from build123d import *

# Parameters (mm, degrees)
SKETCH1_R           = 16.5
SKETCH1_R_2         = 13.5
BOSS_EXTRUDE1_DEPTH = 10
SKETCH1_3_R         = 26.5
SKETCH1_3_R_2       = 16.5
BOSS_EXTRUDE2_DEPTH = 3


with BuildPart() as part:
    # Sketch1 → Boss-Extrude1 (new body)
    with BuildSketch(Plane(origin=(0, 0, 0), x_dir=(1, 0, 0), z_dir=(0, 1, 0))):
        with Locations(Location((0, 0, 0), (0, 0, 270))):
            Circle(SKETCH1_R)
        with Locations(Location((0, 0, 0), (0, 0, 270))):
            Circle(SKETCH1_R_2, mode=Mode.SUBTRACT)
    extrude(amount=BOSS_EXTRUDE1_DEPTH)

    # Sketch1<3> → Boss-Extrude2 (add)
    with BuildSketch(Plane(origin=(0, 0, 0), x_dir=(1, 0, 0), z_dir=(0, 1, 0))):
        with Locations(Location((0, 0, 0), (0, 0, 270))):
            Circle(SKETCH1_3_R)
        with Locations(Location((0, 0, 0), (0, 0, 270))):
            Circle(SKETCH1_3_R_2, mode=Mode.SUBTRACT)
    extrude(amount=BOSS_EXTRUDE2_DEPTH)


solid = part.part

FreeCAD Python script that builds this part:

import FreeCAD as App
import Part
import Sketcher
from FreeCAD import Vector

doc = App.newDocument("Part")
body = doc.addObject("PartDesign::Body", "Body")

# Sketch on XZ plane
sketch1 = doc.addObject("Sketcher::SketchObject", "Sketch")
body.addObject(sketch1)
sketch1.AttachmentSupport = (doc.XZ_Plane, [""])
sketch1.MapMode = "FlatFace"
sketch1.addGeometry(Part.Circle(Vector(0, 0, 0), Vector(0, 0, 1), 16), False)
sketch1.addGeometry(Part.Circle(Vector(0, 0, 0), Vector(0, 0, 1), 14), False)
sketch1.addConstraint(Sketcher.Constraint("Coincident", 0, 3, -1, 1))
sketch1.addConstraint(Sketcher.Constraint("Coincident", 1, 3, -1, 1))
sketch1.addConstraint(Sketcher.Constraint("Diameter", 0, 33.0))
sketch1.addConstraint(Sketcher.Constraint("Diameter", 1, 27.0))
pad1 = doc.addObject("PartDesign::Pad", "Pad")
body.addObject(pad1)
pad1.Profile = sketch1
pad1.Length = 10
pad1.Reversed = True

# Sketch on XZ plane
sketch2 = doc.addObject("Sketcher::SketchObject", "Sketch001")
body.addObject(sketch2)
sketch2.AttachmentSupport = (doc.XZ_Plane, [""])
sketch2.MapMode = "FlatFace"
sketch2.addGeometry(Part.Circle(Vector(0, 0, 0), Vector(0, 0, 1), 26), False)
sketch2.addGeometry(Part.Circle(Vector(0, 0, 0), Vector(0, 0, 1), 16), False)
sketch2.addConstraint(Sketcher.Constraint("Coincident", 0, 3, -1, 1))
sketch2.addConstraint(Sketcher.Constraint("Coincident", 1, 3, -1, 1))
sketch2.addConstraint(Sketcher.Constraint("Diameter", 0, 53.0))
sketch2.addConstraint(Sketcher.Constraint("Diameter", 1, 33.0))
pad2 = doc.addObject("PartDesign::Pad", "Pad001")
body.addObject(pad2)
pad2.Profile = sketch2
pad2.Length = 3
pad2.Reversed = True

doc.recompute()
